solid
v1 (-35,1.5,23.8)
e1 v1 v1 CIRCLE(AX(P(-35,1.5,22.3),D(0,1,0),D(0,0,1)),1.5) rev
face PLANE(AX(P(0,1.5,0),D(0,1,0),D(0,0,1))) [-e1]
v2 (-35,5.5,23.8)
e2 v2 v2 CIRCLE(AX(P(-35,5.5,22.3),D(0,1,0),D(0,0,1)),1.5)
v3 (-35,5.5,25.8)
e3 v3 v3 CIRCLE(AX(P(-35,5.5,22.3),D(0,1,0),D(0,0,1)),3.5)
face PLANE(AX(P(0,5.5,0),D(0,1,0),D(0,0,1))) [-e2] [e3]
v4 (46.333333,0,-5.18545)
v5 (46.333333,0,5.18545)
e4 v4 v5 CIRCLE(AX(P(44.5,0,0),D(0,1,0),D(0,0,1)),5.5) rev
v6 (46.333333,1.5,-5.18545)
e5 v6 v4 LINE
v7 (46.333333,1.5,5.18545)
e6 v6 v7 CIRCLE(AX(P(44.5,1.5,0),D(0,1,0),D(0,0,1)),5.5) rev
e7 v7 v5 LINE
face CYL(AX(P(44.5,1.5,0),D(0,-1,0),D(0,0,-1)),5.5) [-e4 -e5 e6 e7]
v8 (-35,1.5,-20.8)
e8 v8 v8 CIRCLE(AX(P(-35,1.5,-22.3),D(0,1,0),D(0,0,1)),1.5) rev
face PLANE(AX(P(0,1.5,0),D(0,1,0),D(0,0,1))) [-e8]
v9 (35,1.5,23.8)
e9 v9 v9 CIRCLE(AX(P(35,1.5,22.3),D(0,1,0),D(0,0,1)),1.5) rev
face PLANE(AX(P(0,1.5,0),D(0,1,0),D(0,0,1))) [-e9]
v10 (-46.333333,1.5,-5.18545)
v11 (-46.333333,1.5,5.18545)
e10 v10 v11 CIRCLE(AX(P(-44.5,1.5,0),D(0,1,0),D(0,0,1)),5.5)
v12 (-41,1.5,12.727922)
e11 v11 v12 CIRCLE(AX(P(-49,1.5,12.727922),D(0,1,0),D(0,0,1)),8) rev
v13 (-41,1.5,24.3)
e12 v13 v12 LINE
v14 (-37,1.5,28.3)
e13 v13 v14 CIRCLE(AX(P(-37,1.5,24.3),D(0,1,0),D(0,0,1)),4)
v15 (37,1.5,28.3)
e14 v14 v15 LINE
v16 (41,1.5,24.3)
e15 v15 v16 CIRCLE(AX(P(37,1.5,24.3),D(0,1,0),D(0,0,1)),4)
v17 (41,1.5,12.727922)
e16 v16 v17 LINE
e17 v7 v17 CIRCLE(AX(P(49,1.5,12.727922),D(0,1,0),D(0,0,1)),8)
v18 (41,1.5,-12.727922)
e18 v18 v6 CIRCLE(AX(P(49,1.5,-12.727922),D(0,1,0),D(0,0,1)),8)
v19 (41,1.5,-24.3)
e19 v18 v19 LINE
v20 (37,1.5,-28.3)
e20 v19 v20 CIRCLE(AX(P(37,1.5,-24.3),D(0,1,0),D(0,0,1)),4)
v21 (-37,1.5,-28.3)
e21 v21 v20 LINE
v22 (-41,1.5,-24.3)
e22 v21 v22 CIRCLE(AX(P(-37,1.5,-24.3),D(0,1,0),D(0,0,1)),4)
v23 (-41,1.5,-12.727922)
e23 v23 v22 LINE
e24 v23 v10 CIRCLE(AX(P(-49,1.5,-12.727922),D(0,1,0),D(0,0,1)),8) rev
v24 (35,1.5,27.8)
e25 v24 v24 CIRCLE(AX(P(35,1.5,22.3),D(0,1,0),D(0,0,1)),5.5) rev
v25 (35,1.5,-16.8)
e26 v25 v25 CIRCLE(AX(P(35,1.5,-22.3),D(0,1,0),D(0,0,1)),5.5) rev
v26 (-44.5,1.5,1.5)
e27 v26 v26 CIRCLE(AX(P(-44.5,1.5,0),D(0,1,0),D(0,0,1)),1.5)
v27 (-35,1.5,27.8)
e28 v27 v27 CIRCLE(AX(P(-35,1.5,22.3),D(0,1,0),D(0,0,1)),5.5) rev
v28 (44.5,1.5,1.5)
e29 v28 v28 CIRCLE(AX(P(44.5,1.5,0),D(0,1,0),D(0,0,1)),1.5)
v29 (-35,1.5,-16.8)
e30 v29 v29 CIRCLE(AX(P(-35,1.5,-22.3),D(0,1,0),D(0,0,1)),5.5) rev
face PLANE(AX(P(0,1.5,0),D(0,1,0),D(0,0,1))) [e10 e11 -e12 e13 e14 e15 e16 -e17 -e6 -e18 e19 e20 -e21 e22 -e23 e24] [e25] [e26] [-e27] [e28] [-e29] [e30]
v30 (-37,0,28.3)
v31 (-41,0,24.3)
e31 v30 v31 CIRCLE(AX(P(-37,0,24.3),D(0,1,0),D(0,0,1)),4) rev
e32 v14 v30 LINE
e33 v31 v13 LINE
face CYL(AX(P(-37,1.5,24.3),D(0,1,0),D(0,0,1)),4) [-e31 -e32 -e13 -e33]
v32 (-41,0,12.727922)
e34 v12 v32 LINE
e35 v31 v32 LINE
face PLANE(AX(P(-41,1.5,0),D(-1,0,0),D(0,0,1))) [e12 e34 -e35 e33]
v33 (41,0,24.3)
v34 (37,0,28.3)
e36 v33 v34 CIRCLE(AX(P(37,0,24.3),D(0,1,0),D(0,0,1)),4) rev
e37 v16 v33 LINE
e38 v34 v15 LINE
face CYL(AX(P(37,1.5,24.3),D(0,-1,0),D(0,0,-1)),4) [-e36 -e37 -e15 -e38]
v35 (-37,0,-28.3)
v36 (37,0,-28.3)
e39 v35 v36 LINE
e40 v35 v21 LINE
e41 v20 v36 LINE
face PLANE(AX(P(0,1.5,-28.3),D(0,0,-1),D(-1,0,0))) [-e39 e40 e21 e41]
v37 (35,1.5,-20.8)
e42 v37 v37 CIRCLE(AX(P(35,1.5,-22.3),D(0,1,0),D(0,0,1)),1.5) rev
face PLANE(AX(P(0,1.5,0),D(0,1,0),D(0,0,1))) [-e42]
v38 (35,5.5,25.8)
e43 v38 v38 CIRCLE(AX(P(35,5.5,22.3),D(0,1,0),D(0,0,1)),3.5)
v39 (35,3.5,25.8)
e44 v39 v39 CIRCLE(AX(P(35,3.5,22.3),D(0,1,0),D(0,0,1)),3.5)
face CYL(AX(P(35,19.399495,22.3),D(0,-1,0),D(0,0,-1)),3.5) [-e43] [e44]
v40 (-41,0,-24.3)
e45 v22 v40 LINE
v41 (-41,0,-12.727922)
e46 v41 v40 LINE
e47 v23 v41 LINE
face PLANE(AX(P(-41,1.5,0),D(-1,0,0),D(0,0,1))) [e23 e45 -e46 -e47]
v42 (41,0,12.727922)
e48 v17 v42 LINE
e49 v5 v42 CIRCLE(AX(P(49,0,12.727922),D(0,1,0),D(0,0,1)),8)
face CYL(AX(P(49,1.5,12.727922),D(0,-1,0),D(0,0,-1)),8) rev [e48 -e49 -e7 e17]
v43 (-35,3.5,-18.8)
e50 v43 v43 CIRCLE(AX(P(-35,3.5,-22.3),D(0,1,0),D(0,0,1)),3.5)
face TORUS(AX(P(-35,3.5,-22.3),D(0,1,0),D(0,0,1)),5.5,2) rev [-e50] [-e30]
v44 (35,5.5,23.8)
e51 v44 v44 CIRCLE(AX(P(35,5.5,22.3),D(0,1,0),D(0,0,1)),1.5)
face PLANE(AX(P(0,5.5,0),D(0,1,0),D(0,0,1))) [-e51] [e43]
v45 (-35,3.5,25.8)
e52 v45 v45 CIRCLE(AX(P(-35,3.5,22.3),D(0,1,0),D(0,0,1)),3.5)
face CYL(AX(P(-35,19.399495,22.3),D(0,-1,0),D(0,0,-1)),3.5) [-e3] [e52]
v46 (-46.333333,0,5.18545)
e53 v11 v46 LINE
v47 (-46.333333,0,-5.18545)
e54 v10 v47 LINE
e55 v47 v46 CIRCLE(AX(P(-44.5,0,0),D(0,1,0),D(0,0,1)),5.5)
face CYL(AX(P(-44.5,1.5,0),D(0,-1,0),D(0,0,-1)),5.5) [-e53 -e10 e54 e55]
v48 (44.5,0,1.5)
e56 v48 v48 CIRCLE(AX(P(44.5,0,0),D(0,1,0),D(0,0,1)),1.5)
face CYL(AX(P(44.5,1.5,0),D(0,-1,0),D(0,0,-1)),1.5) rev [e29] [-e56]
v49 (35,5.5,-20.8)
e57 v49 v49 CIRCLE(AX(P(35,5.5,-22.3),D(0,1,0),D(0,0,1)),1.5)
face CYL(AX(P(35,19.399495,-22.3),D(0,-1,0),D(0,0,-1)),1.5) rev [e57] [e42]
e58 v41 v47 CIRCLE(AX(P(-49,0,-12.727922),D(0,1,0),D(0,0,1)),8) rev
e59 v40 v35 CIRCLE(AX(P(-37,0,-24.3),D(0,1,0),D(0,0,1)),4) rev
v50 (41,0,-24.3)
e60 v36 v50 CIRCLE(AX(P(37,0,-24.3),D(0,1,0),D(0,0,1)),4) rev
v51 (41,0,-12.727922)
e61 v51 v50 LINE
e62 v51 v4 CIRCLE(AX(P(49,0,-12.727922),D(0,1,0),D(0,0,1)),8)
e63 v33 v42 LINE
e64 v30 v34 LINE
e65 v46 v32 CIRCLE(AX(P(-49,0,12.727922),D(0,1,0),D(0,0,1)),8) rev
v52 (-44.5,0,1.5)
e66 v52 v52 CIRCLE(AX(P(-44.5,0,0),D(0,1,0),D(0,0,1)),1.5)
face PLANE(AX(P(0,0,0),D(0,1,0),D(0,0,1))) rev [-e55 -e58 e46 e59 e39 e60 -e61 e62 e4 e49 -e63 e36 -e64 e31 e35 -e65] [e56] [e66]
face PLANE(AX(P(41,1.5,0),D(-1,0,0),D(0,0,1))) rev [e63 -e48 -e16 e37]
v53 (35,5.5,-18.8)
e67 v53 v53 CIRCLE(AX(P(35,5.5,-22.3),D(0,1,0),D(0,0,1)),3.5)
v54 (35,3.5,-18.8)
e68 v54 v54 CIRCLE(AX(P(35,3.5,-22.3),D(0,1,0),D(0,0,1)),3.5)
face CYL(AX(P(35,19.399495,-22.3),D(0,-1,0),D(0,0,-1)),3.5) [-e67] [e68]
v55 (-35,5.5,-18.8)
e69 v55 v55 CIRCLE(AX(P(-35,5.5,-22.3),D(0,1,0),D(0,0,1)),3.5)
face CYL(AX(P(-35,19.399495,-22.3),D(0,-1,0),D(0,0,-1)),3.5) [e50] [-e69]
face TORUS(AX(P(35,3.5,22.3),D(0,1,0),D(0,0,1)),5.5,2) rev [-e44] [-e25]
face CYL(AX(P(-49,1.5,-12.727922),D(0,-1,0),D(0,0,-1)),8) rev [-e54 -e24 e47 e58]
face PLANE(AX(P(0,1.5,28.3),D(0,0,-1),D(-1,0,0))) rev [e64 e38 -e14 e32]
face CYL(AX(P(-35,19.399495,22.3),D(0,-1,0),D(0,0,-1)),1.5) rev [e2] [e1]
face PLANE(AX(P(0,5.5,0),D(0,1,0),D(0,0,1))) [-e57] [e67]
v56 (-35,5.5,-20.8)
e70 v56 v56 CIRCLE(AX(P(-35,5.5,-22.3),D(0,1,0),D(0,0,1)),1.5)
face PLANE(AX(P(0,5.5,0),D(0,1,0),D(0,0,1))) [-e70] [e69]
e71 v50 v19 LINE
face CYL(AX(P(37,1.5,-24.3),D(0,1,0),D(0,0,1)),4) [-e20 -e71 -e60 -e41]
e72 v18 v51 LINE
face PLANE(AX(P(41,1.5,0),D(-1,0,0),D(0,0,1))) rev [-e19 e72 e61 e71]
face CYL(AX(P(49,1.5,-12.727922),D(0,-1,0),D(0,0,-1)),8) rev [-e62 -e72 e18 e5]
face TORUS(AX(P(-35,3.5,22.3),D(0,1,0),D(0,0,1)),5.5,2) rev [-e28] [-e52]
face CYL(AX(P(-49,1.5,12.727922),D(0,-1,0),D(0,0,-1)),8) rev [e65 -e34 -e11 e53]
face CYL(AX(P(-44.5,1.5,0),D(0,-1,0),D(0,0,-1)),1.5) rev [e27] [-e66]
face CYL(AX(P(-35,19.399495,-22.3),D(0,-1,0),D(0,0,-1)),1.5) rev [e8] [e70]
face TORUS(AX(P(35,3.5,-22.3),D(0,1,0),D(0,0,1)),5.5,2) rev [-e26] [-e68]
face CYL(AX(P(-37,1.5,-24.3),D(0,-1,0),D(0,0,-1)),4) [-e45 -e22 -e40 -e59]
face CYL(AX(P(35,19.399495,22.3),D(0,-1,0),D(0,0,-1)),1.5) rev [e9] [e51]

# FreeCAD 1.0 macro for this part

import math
import FreeCAD as App
import Part
import Sketcher

V = App.Vector
Q = App.Units.Quantity


def edges_at(feature, points):
    """Names of the edges that pass closest to the given points."""
    edges = feature.Shape.Edges
    near = lambda p: min(range(len(edges)), key=lambda i: edges[i].distToShape(Part.Vertex(*p))[0])
    return sorted({f"Edge{near(p) + 1}" for p in points})

doc = App.newDocument("Part")
body = doc.addObject("PartDesign::Body", "Body")

# Sketch on XZ plane
sketch1 = body.newObject("Sketcher::SketchObject", "Sketch")
sketch1.AttachmentSupport = (doc.getObject("XZ_Plane"), [""])
sketch1.MapMode = "FlatFace"
sketch1.addGeometry([
    Part.LineSegment(V(-41, 12.7, 0), V(-41, 28.3, 0)),  # 0
    Part.LineSegment(V(-41, 28.3, 0), V(41, 28.3, 0)),  # 1
    Part.LineSegment(V(41, 28.3, 0), V(41, 12.7, 0)),  # 2
    Part.ArcOfCircle(Part.Circle(V(49, 12.7, 0), V(0, 0, 1), 8), math.radians(-180), math.radians(-109)),  # 3
    Part.ArcOfCircle(Part.Circle(V(44.5, 0, 0), V(0, 0, 1), 5.5), math.radians(-71), math.radians(71)),  # 4
    Part.ArcOfCircle(Part.Circle(V(49, -12.7, 0), V(0, 0, 1), 8), math.radians(109), math.radians(180)),  # 5
    Part.LineSegment(V(41, -12.7, 0), V(41, -28.3, 0)),  # 6
    Part.LineSegment(V(41, -28.3, 0), V(-41, -28.3, 0)),  # 7
    Part.LineSegment(V(-41, -28.3, 0), V(-41, -12.7, 0)),  # 8
    Part.ArcOfCircle(Part.Circle(V(-49, -12.7, 0), V(0, 0, 1), 8), math.radians(0), math.radians(71)),  # 9
    Part.ArcOfCircle(Part.Circle(V(-44.5, 0, 0), V(0, 0, 1), 5.5), math.radians(109), math.radians(251)),  # 10
    Part.ArcOfCircle(Part.Circle(V(-49, 12.7, 0), V(0, 0, 1), 8), math.radians(-71), math.radians(0)),  # 11
    Part.Circle(V(-44.5, 0, 0), V(0, 0, 1), 1.5),  # 12
    Part.Circle(V(44.5, 0, 0), V(0, 0, 1), 1.5),  # 13
], False)
sketch1.addConstraint([
    Sketcher.Constraint("Coincident", 0, 2, 1, 1),
    Sketcher.Constraint("Coincident", 1, 2, 2, 1),
    Sketcher.Constraint("Tangent", 2, 2, 3, 1),
    Sketcher.Constraint("Tangent", 3, 2, 4, 2),
    Sketcher.Constraint("Tangent", 4, 1, 5, 1),
    Sketcher.Constraint("Tangent", 5, 2, 6, 1),
    Sketcher.Constraint("Coincident", 6, 2, 7, 1),
    Sketcher.Constraint("Coincident", 7, 2, 8, 1),
    Sketcher.Constraint("Tangent", 8, 2, 9, 1),
    Sketcher.Constraint("Tangent", 9, 2, 10, 2),
    Sketcher.Constraint("Tangent", 10, 1, 11, 1),
    Sketcher.Constraint("Tangent", 11, 2, 0, 1),
    Sketcher.Constraint("Vertical", 0),
    Sketcher.Constraint("Horizontal", 1),
    Sketcher.Constraint("Vertical", 2),
    Sketcher.Constraint("Vertical", 6),
    Sketcher.Constraint("Horizontal", 7),
    Sketcher.Constraint("Vertical", 8),
    Sketcher.Constraint("Coincident", 12, 3, 10, 3),
    Sketcher.Constraint("Coincident", 13, 3, 4, 3),
    Sketcher.Constraint("Equal", 3, 5),
    Sketcher.Constraint("Equal", 5, 9),
    Sketcher.Constraint("Equal", 4, 10),
    Sketcher.Constraint("Equal", 9, 11),
    Sketcher.Constraint("Equal", 12, 13),
    Sketcher.Constraint("Symmetric", 3, 3, 9, 3, -1, 1),
    Sketcher.Constraint("Symmetric", 5, 3, 11, 3, -1, 1),
    Sketcher.Constraint("Symmetric", 5, 3, 9, 3, -2),
    Sketcher.Constraint("Equal", 2, 6),
    Sketcher.Constraint("Diameter", 12, Q("3 mm")),
    Sketcher.Constraint("Radius", 3, Q("8 mm")),
    Sketcher.Constraint("Radius", 4, Q("5.5 mm")),
    Sketcher.Constraint("DistanceX", 1, 1, 1, 2, Q("82 mm")),
    Sketcher.Constraint("DistanceX", 10, 3, 4, 3, Q("89 mm")),
    Sketcher.Constraint("DistanceY", -1, 1, 0, 2, Q("28.3 mm")),
])
pad1 = body.newObject("PartDesign::Pad", "Pad")
pad1.Profile = sketch1
pad1.Length = 1.5
pad1.Reversed = True

# Sketch on XZ plane
sketch2 = body.newObject("Sketcher::SketchObject", "Sketch001")
sketch2.AttachmentSupport = (doc.getObject("XZ_Plane"), [""])
sketch2.MapMode = "FlatFace"
sketch2.addGeometry([
    Part.Circle(V(-35, -22.3, 0), V(0, 0, 1), 3.5),  # 0
    Part.Circle(V(-35, -22.3, 0), V(0, 0, 1), 1.5),  # 1
    Part.Circle(V(35, -22.3, 0), V(0, 0, 1), 3.5),  # 2
    Part.Circle(V(35, -22.3, 0), V(0, 0, 1), 1.5),  # 3
    Part.Circle(V(35, 22.3, 0), V(0, 0, 1), 3.5),  # 4
    Part.Circle(V(35, 22.3, 0), V(0, 0, 1), 1.5),  # 5
    Part.Circle(V(-35, 22.3, 0), V(0, 0, 1), 3.5),  # 6
    Part.Circle(V(-35, 22.3, 0), V(0, 0, 1), 1.5),  # 7
], False)
sketch2.addConstraint([
    Sketcher.Constraint("Coincident", 1, 3, 0, 3),
    Sketcher.Constraint("Coincident", 3, 3, 2, 3),
    Sketcher.Constraint("Coincident", 5, 3, 4, 3),
    Sketcher.Constraint("Coincident", 7, 3, 6, 3),
    Sketcher.Constraint("Equal", 0, 2),
    Sketcher.Constraint("Equal", 1, 3),
    Sketcher.Constraint("Equal", 2, 4),
    Sketcher.Constraint("Equal", 3, 5),
    Sketcher.Constraint("Equal", 4, 6),
    Sketcher.Constraint("Equal", 5, 7),
    Sketcher.Constraint("Symmetric", 0, 3, 4, 3, -1, 1),
    Sketcher.Constraint("Symmetric", 2, 3, 6, 3, -1, 1),
    Sketcher.Constraint("Symmetric", 0, 3, 2, 3, -2),
    Sketcher.Constraint("Diameter", 0, Q("7 mm")),
    Sketcher.Constraint("Diameter", 1, Q("3 mm")),
    Sketcher.Constraint("DistanceX", 0, 3, -1, 1, Q("35 mm")),
    Sketcher.Constraint("DistanceY", 0, 3, -1, 1, Q("22.3 mm")),
])
pad2 = body.newObject("PartDesign::Pad", "Pad001")
pad2.Profile = sketch2
pad2.Length = 5.5
pad2.Reversed = True
doc.recompute()

fillet = body.newObject("PartDesign::Fillet", "Fillet")
fillet.Base = (pad2, edges_at(pad2, [
    (-35, 1.5, -25.8),
    (35, 1.5, -25.8),
    (35, 1.5, 18.8),
    (-35, 1.5, 18.8),
]))
fillet.Radius = 2
doc.recompute()

fillet2 = body.newObject("PartDesign::Fillet", "Fillet001")
fillet2.Base = (fillet, edges_at(fillet, [
    (-41, 0.75, 28.3),
    (-41, 0.75, -28.3),
    (41, 0.75, -28.3),
    (41, 0.75, 28.3),
]))
fillet2.Radius = 4

doc.recompute()
